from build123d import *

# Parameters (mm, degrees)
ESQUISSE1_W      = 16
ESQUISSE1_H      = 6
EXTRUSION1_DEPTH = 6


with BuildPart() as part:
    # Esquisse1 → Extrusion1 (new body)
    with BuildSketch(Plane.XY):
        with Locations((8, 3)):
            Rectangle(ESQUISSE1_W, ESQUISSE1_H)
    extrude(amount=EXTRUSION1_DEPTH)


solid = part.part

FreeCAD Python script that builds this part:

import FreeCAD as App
import Part
import Sketcher


def add_polygon(sketch, points):
    """Adds a closed chain of lines whose ends are joined by coincident constraints."""
    first, n = sketch.GeometryCount, len(points)
    for a, b in zip(points, points[1:] + points[:1]):
        sketch.addGeometry(Part.LineSegment(App.Vector(*a, 0), App.Vector(*b, 0)), False)
    for i in range(n):
        sketch.addConstraint(Sketcher.Constraint("Coincident", first + i, 2, first + (i + 1) % n, 1))

doc = App.newDocument("Part")
body = doc.addObject("PartDesign::Body", "Body")

# Sketch on XY plane
sketch1 = doc.addObject("Sketcher::SketchObject", "Sketch")
body.addObject(sketch1)
sketch1.AttachmentSupport = (doc.XY_Plane, [""])
sketch1.MapMode = "FlatFace"
add_polygon(sketch1, [(0, 6), (0, 0), (16, 0), (16, 6)])  # lines 0-3
sketch1.addConstraint([
    Sketcher.Constraint("Vertical", 0),
    Sketcher.Constraint("Horizontal", 1),
    Sketcher.Constraint("Vertical", 2),
    Sketcher.Constraint("Horizontal", 3),
    Sketcher.Constraint("Coincident", 0, 2, -1, 1),
    Sketcher.Constraint("DistanceX", 1, 1, 1, 2, 16.0),
    Sketcher.Constraint("DistanceY", 0, 2, 0, 1, 6.0),
])
pad1 = doc.addObject("PartDesign::Pad", "Pad")
body.addObject(pad1)
pad1.Profile = sketch1
pad1.Length = 6

doc.recompute()
